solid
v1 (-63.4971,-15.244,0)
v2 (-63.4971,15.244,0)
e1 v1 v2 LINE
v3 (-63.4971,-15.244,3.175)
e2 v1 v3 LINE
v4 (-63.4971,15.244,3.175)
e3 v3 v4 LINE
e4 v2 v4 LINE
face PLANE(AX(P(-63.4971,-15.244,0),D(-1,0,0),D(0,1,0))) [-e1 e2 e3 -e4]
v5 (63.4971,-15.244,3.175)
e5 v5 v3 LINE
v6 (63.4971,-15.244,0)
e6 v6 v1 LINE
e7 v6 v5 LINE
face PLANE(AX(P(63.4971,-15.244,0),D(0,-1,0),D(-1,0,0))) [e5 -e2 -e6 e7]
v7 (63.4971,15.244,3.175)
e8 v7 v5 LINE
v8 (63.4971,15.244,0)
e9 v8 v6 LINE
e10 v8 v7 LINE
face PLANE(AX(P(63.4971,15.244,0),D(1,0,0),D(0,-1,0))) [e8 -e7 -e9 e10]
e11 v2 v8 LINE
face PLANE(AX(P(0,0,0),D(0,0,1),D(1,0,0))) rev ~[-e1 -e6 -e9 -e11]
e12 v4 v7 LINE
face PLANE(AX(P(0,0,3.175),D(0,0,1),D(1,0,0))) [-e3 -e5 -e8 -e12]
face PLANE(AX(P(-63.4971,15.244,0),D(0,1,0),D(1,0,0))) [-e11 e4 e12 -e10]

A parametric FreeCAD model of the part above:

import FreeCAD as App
import Part
import Sketcher
Q = App.Units.Quantity


def add_polygon(sketch, points):
    """Adds a closed chain of lines whose ends are joined by coincident constraints."""
    first, n = sketch.GeometryCount, len(points)
    for a, b in zip(points, points[1:] + points[:1]):
        sketch.addGeometry(Part.LineSegment(App.Vector(*a, 0), App.Vector(*b, 0)), False)
    for i in range(n):
        sketch.addConstraint(Sketcher.Constraint("Coincident", first + i, 2, first + (i + 1) % n, 1))

doc = App.newDocument("Part")
params = doc.addObject("Spreadsheet::Sheet", "Params")
for row, (alias, value) in enumerate([
    ("pad1_length", "0.125 in"),
], start=1):
    params.set(f"A{row}", alias)
    params.set(f"B{row}", "=" + value)
    params.setAlias(f"B{row}", alias)

body = doc.addObject("PartDesign::Body", "Body")

# Sketch on XY plane
sketch1 = body.newObject("Sketcher::SketchObject", "Sketch")
sketch1.AttachmentSupport = (doc.getObject("XY_Plane"), [""])
sketch1.MapMode = "FlatFace"
add_polygon(sketch1, [(-63.4971, -15.244), (63.4971, -15.244), (63.4971, 15.244), (-63.4971, 15.244)])  # lines 0-3
sketch1.addConstraint([
    Sketcher.Constraint("Horizontal", 0),
    Sketcher.Constraint("Vertical", 1),
    Sketcher.Constraint("Horizontal", 2),
    Sketcher.Constraint("Vertical", 3),
    Sketcher.Constraint("Symmetric", 0, 2, 2, 2, -1, 1),
    Sketcher.Constraint("DistanceX", 0, 1, 0, 2, Q("126.9942 mm")),
    Sketcher.Constraint("DistanceY", 1, 1, 1, 2, Q("30.488 mm")),
])
pad1 = body.newObject("PartDesign::Pad", "Pad")
pad1.Profile = sketch1
pad1.setExpression("Length", "Params.pad1_length")

doc.recompute()
